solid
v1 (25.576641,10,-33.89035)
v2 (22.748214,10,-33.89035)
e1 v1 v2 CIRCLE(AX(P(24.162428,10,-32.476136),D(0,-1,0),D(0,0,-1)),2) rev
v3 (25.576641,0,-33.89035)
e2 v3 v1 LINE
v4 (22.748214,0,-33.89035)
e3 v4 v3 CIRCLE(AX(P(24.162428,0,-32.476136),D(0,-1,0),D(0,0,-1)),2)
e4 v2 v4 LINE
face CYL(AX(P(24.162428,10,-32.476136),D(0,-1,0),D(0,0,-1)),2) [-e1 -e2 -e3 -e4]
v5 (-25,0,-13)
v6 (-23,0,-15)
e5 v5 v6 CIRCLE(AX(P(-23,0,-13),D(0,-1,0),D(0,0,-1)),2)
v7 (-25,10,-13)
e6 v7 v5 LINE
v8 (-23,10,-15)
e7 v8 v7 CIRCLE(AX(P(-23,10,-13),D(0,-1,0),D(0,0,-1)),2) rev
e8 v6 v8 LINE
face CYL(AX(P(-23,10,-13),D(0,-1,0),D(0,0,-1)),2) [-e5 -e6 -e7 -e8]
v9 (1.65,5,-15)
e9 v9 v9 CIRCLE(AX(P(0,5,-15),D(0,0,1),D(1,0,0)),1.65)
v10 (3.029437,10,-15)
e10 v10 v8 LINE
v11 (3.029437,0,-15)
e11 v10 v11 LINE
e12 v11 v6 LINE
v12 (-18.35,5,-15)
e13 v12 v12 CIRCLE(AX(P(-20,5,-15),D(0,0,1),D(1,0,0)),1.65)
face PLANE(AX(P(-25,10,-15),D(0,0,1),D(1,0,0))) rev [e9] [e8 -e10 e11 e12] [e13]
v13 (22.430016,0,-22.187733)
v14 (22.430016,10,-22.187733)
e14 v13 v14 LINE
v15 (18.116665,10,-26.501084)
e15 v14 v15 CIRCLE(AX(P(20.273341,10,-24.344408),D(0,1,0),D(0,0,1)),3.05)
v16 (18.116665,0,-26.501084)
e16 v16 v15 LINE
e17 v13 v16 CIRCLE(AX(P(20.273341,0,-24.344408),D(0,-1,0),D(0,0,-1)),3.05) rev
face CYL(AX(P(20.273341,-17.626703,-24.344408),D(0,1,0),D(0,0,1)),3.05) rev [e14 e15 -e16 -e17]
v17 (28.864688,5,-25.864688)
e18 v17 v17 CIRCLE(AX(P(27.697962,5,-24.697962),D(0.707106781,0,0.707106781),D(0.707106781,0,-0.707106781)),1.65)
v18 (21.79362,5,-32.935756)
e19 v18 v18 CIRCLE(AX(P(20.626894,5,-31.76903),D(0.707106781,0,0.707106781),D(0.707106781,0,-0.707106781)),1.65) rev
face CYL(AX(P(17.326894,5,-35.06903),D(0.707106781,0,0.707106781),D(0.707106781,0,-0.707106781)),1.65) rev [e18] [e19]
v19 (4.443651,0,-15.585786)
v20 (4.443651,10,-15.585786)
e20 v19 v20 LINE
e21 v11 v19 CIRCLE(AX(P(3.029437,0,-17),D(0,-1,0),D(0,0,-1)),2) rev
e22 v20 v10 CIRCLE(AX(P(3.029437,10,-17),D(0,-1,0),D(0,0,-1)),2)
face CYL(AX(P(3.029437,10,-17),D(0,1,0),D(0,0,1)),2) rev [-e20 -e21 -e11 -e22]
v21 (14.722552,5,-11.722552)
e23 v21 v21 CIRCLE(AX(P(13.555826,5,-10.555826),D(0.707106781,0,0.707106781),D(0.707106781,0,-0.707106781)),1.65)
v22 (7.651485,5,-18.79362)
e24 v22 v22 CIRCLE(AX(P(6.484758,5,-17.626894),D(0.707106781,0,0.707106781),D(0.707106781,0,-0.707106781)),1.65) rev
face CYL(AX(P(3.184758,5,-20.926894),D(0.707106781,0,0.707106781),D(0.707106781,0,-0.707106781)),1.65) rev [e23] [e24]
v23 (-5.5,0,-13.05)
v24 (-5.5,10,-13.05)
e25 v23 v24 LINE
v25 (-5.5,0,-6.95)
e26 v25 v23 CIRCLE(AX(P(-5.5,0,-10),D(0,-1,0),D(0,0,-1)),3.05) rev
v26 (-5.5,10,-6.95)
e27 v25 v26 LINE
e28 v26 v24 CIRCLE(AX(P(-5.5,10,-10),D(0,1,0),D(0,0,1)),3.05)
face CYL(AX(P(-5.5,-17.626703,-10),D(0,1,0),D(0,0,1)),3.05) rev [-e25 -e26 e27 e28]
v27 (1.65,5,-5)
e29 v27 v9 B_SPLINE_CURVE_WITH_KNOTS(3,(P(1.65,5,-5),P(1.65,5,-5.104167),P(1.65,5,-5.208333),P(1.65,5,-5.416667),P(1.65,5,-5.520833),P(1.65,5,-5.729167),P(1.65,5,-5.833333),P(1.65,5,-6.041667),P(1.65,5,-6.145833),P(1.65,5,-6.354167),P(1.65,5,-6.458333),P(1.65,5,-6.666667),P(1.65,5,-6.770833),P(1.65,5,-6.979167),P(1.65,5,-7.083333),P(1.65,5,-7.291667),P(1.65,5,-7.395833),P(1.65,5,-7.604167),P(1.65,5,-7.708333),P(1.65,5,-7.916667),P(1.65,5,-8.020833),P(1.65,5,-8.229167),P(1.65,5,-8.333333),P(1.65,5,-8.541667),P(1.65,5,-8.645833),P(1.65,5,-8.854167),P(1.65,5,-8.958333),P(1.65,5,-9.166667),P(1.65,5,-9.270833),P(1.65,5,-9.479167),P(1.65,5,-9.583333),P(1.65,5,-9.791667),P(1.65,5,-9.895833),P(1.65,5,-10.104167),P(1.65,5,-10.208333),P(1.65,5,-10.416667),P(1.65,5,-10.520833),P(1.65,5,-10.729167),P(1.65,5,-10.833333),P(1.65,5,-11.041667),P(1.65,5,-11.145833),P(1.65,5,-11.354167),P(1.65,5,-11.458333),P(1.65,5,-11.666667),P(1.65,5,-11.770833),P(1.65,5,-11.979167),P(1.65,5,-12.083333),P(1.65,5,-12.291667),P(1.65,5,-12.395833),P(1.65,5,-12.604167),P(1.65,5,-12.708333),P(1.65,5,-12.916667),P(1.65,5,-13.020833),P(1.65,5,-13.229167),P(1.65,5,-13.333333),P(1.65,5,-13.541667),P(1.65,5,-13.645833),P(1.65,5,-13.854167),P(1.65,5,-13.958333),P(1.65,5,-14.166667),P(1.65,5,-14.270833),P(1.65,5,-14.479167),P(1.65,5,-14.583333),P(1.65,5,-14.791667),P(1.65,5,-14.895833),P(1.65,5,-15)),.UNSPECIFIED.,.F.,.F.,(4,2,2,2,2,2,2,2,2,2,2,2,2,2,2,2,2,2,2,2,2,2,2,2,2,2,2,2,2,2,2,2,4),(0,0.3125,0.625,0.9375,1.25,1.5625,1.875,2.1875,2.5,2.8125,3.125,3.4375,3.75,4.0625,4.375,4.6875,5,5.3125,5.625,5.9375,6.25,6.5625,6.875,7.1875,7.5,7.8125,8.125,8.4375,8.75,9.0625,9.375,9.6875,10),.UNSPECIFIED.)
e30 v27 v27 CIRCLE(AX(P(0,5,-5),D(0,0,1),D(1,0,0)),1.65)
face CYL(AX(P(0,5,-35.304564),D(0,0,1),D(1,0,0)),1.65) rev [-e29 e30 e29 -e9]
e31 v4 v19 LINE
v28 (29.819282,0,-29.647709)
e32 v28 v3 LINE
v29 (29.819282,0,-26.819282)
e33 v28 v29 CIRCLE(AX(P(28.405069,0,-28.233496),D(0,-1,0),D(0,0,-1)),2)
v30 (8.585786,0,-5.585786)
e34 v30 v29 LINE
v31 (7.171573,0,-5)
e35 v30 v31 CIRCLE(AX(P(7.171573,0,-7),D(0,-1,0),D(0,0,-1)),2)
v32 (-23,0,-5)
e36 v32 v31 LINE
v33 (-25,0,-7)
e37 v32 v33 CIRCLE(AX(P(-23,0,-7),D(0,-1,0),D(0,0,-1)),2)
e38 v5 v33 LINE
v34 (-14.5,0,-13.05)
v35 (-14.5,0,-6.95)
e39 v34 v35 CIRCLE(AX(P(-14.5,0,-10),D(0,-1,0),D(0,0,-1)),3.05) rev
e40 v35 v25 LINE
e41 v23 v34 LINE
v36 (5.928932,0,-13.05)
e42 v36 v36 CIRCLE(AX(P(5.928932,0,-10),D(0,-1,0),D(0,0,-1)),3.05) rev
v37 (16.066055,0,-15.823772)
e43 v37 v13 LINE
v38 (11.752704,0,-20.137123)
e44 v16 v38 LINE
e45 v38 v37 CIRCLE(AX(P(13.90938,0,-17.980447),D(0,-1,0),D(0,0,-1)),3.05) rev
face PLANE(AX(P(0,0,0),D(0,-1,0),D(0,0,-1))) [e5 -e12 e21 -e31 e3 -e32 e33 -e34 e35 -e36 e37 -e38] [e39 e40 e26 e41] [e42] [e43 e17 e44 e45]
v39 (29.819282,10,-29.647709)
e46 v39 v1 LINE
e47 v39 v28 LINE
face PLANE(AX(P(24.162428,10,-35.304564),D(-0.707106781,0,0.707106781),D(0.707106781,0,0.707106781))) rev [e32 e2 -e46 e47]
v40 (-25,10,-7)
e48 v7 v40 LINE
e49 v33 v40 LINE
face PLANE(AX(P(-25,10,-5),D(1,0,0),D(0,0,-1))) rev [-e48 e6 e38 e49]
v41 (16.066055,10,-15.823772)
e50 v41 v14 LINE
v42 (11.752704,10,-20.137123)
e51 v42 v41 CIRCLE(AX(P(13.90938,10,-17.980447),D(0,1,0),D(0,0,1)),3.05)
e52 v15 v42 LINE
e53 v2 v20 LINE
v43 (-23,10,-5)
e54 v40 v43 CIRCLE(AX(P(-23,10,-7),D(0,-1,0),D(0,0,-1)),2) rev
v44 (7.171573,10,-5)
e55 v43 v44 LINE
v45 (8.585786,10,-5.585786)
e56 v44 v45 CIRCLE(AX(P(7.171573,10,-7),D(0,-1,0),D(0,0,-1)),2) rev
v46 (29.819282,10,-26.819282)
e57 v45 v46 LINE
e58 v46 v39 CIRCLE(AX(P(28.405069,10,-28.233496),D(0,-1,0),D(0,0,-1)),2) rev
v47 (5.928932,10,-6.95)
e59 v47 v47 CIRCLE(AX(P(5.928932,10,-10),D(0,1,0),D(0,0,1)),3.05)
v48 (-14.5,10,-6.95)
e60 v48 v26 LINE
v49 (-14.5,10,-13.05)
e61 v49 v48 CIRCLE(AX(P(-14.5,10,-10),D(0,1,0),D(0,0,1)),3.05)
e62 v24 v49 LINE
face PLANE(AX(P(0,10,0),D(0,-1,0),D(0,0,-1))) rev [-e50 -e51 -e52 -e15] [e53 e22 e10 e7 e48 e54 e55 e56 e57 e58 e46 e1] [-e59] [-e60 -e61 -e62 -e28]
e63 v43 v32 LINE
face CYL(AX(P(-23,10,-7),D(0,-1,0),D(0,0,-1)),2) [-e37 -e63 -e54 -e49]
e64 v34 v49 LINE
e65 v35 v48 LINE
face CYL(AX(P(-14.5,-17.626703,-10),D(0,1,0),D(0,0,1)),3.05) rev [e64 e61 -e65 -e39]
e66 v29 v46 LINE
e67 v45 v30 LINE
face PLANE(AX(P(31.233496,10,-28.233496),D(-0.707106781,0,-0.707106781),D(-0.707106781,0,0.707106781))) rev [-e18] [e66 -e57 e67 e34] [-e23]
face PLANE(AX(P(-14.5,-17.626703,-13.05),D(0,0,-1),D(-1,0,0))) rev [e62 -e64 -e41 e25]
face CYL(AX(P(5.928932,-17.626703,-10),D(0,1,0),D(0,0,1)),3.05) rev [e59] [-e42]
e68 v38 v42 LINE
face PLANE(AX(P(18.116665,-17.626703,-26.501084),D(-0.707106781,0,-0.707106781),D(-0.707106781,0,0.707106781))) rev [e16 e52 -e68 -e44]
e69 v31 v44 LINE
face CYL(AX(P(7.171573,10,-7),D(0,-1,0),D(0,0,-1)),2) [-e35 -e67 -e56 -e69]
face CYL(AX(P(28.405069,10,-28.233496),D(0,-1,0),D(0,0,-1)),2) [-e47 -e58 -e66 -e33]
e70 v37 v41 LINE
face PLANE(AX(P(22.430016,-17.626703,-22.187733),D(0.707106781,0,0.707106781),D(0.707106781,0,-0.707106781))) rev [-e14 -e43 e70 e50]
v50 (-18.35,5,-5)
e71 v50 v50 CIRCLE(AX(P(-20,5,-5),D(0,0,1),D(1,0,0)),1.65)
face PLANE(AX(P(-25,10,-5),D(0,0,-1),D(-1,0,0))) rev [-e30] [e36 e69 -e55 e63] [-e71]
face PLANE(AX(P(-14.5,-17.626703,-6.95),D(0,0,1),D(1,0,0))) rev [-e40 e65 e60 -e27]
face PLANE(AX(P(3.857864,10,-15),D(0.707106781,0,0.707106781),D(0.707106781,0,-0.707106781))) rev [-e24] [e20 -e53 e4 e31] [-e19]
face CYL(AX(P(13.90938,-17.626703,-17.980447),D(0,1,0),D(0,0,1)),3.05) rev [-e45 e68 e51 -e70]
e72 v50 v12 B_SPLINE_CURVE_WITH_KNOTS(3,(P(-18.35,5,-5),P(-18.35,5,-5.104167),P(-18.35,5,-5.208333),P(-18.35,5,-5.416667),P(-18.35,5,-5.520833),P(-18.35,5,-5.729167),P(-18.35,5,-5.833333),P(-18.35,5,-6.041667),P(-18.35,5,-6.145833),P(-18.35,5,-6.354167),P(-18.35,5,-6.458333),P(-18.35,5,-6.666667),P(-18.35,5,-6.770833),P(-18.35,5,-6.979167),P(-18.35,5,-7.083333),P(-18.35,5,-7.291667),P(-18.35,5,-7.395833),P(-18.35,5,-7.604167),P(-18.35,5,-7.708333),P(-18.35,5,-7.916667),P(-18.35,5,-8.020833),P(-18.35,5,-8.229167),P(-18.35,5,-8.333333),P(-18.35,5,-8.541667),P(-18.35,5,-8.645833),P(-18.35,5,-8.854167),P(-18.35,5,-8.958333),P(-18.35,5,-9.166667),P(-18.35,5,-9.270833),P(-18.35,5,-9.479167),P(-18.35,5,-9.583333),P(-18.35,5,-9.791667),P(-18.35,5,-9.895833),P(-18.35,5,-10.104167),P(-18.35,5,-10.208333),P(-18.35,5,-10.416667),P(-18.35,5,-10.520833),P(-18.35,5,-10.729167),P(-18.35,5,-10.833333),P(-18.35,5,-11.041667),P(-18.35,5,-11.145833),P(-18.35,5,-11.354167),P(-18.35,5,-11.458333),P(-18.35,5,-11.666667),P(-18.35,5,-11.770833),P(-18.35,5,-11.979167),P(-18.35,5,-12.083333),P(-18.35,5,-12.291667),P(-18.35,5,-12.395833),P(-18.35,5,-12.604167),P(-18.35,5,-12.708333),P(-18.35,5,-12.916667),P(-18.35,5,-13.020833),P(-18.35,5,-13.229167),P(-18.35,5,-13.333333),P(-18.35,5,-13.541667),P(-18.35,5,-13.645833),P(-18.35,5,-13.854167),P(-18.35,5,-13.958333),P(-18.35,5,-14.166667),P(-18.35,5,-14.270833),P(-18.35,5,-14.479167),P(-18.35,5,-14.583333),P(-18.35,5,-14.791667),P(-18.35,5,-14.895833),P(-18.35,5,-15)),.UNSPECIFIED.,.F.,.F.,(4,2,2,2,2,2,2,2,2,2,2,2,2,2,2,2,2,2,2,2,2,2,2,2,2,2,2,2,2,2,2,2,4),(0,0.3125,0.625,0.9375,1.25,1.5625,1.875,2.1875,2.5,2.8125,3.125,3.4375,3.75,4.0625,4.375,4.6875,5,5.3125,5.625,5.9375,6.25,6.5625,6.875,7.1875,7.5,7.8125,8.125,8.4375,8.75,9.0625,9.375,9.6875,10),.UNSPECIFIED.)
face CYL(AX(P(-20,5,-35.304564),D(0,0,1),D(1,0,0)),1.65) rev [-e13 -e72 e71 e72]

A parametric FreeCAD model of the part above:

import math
import FreeCAD as App
import Part
import Sketcher

V = App.Vector
Q = App.Units.Quantity


def edges_at(feature, points):
    """Names of the edges that pass closest to the given points."""
    edges = feature.Shape.Edges
    near = lambda p: min(range(len(edges)), key=lambda i: edges[i].distToShape(Part.Vertex(*p))[0])
    return sorted({f"Edge{near(p) + 1}" for p in points})

doc = App.newDocument("Part")
params = doc.addObject("Spreadsheet::Sheet", "Params")
for row, (alias, value) in enumerate([
    ("sketch1_width", "33 mm"),
    ("sketch1_height", "10 mm"),
    ("sketch1_length", "10 mm"),
    ("pad1_length", "10 mm"),
    ("sketch2_diameter", "3.3 mm"),
    ("sketch3_diameter", "3.3 mm"),
    ("pocket2_length", "10 mm"),
    ("sketch4_diameter", "6.1 mm"),
    ("sketch4_width", "9 mm"),
    ("sketch4_length", "9 mm"),
    ("pocket3_length", "10 mm"),
    ("fillet_radius", "2 mm"),
], start=1):
    params.set(f"A{row}", alias)
    params.set(f"B{row}", "=" + value)
    params.setAlias(f"B{row}", alias)

body = doc.addObject("PartDesign::Body", "Body")

sketch1 = body.newObject("Sketcher::SketchObject", "Sketch")
sketch1.AttachmentSupport = (doc.getObject("XZ_Plane"), [""])
sketch1.MapMode = "FlatFace"
sketch1.addGeometry([
    Part.LineSegment(V(-25, -5, 0), V(8, -5, 0)),
    Part.LineSegment(V(8, -5, 0), V(31, -28, 0)),
    Part.LineSegment(V(31, -28, 0), V(24, -35, 0)),
    Part.LineSegment(V(24, -35, 0), V(4, -15, 0)),
    Part.LineSegment(V(4, -15, 0), V(-25, -15, 0)),
    Part.LineSegment(V(-25, -15, 0), V(-25, -5, 0)),
], False)
sketch1.addConstraint([
    Sketcher.Constraint("Coincident", 0, 2, 1, 1),
    Sketcher.Constraint("Coincident", 1, 2, 2, 1),
    Sketcher.Constraint("Coincident", 2, 2, 3, 1),
    Sketcher.Constraint("Coincident", 3, 2, 4, 1),
    Sketcher.Constraint("Coincident", 4, 2, 5, 1),
    Sketcher.Constraint("Coincident", 5, 2, 0, 1),
    Sketcher.Constraint("Horizontal", 0),
    Sketcher.Constraint("Horizontal", 4),
    Sketcher.Constraint("Vertical", 5),
    Sketcher.Constraint("Perpendicular", 1, 2),
    Sketcher.Constraint("Perpendicular", 2, 3),
    Sketcher.Constraint("DistanceX", 0, 1, 0, 2, Q("33 mm")),
    Sketcher.Constraint("DistanceY", 5, 1, 5, 2, Q("10 mm")),
    Sketcher.Constraint("Angle", 1, Q("-45 deg")),
    Sketcher.Constraint("Distance", 2, Q("10 mm")),
    Sketcher.Constraint("DistanceX", -1, 1, 0, 2, Q("8 mm")),
    Sketcher.Constraint("DistanceY", 0, 2, -1, 1, Q("5 mm")),
    Sketcher.Constraint("Distance", 3, Q("28.714989 mm")),
])
sketch1.setExpression("Constraints[11]", "Params.sketch1_width")
sketch1.setExpression("Constraints[12]", "Params.sketch1_height")
sketch1.setExpression("Constraints[14]", "Params.sketch1_length")
pad1 = body.newObject("PartDesign::Pad", "Pad")
pad1.Profile = sketch1
pad1.setExpression("Length", "Params.pad1_length")
pad1.Reversed = True

sketch2 = body.newObject("Sketcher::SketchObject", "Sketch001")
sketch2.AttachmentSupport = (doc.getObject("XY_Plane"), [""])
sketch2.MapMode = "FlatFace"
sketch2.AttachmentOffset = App.Placement(V(0, 0, -5), App.Rotation())
sketch2.addGeometry([
    Part.Circle(V(-20, 5, 0), V(0, 0, 1), 1.6),
    Part.Circle(V(0, 5, 0), V(0, 0, 1), 1.6),
], False)
sketch2.addConstraint([
    Sketcher.Constraint("Equal", 0, 1),
    Sketcher.Constraint("PointOnObject", 1, 3, -2),
    Sketcher.Constraint("Horizontal", 0, 3, 1, 3),
    Sketcher.Constraint("Diameter", 0, Q("3.3 mm")),
    Sketcher.Constraint("DistanceX", 0, 3, -1, 1, Q("20 mm")),
    Sketcher.Constraint("DistanceY", -1, 1, 0, 3, Q("5 mm")),
])
sketch2.setExpression("Constraints[3]", "Params.sketch2_diameter")
pocket1 = body.newObject("PartDesign::Pocket", "Pocket")
pocket1.Profile = sketch2
pocket1.Type = "ThroughAll"

sketch3 = body.newObject("Sketcher::SketchObject", "Sketch002")
sketch3.Placement = App.Placement(V(1.5, 0, 1.5), App.Rotation(V(0.707106781, 0, -0.707106781), V(0, 0.999999999, 0), V(0.707106781, 0, 0.707106781), "ZXY"))
sketch3.addGeometry([
    Part.Circle(V(37, 5, 0), V(0, 0, 1), 1.6),
    Part.Circle(V(17, 5, 0), V(0, 0, 1), 1.6),
], False)
sketch3.addConstraint([
    Sketcher.Constraint("Equal", 0, 1),
    Sketcher.Constraint("Horizontal", 0, 3, 1, 3),
    Sketcher.Constraint("Diameter", 0, Q("3.3 mm")),
    Sketcher.Constraint("DistanceY", -1, 1, 0, 3, Q("5 mm")),
    Sketcher.Constraint("DistanceX", 1, 3, 0, 3, Q("20 mm")),
    Sketcher.Constraint("DistanceX", -1, 1, 0, 3, Q("37.049513 mm")),
])
sketch3.setExpression("Constraints[2]", "Params.sketch3_diameter")
pocket2 = body.newObject("PartDesign::Pocket", "Pocket001")
pocket2.Profile = sketch3
pocket2.setExpression("Length", "Params.pocket2_length")

sketch4 = body.newObject("Sketcher::SketchObject", "Sketch003")
sketch4.AttachmentSupport = (doc.getObject("XZ_Plane"), [""])
sketch4.MapMode = "FlatFace"
sketch4.AttachmentOffset = App.Placement(V(0, 0, -10), App.Rotation())
sketch4.addGeometry([
    Part.Circle(V(5.9, -10, 0), V(0, 0, 1), 3),
    Part.LineSegment(V(-5.5, -13.1, 0), V(-14.5, -13.1, 0)),
    Part.ArcOfCircle(Part.Circle(V(-14.5, -10, 0), V(0, 0, 1), 3), math.radians(90), math.radians(270)),
    Part.LineSegment(V(-14.5, -7, 0), V(-5.5, -7, 0)),
    Part.ArcOfCircle(Part.Circle(V(-5.5, -10, 0), V(0, 0, 1), 3), math.radians(-90), math.radians(90)),
    Part.LineSegment(V(16.1, -15.8, 0), V(22.4, -22.2, 0)),
    Part.ArcOfCircle(Part.Circle(V(20.3, -24.3, 0), V(0, 0, 1), 3.1), math.radians(-135), math.radians(45)),
    Part.LineSegment(V(18.1, -26.5, 0), V(11.8, -20.1, 0)),
    Part.ArcOfCircle(Part.Circle(V(13.9, -18, 0), V(0, 0, 1), 3), math.radians(45), math.radians(225)),
], False)
sketch4.addConstraint([
    Sketcher.Constraint("Tangent", 1, 2, 2, 2),
    Sketcher.Constraint("Tangent", 2, 1, 3, 1),
    Sketcher.Constraint("Tangent", 3, 2, 4, 2),
    Sketcher.Constraint("Tangent", 4, 1, 1, 1),
    Sketcher.Constraint("Tangent", 5, 2, 6, 2),
    Sketcher.Constraint("Tangent", 6, 1, 7, 1),
    Sketcher.Constraint("Tangent", 7, 2, 8, 2),
    Sketcher.Constraint("Tangent", 8, 1, 5, 1),
    Sketcher.Constraint("Horizontal", 1),
    Sketcher.Constraint("Horizontal", 3),
    Sketcher.Constraint("Equal", 0, 2),
    Sketcher.Constraint("Equal", 4, 6),
    Sketcher.Constraint("Equal", 6, 8),
    Sketcher.Constraint("Horizontal", 0, 3, 2, 3),
    Sketcher.Constraint("Diameter", 0, Q("6.1 mm")),
    Sketcher.Constraint("DistanceX", 1, 2, 1, 1, Q("9 mm")),
    Sketcher.Constraint("Angle", 5, Q("-45 deg")),
    Sketcher.Constraint("Distance", 5, Q("9 mm")),
    Sketcher.Constraint("DistanceY", 0, 3, -1, 1, Q("10 mm")),
    Sketcher.Constraint("DistanceX", 2, 3, -1, 1, Q("14.5 mm")),
    Sketcher.Constraint("DistanceX", -1, 1, 6, 3, Q("20.273341 mm")),
    Sketcher.Constraint("DistanceY", 6, 3, -1, 1, Q("24.344408 mm")),
    Sketcher.Constraint("DistanceX", 0, 3, 6, 3, Q("14.344408 mm")),
])
sketch4.setExpression("Constraints[14]", "Params.sketch4_diameter")
sketch4.setExpression("Constraints[15]", "Params.sketch4_width")
sketch4.setExpression("Constraints[17]", "Params.sketch4_length")
pocket3 = body.newObject("PartDesign::Pocket", "Pocket002")
pocket3.Profile = sketch4
pocket3.setExpression("Length", "Params.pocket3_length")
pocket3.Reversed = True
doc.recompute()

fillet = body.newObject("PartDesign::Fillet", "Fillet")
fillet.Base = (pocket3, edges_at(pocket3, [
    (-25, 5, -15),
    (3.858, 5, -15),
    (24.162, 5, -35.305),
    (31.233, 5, -28.233),
    (8, 5, -5),
    (-25, 5, -5),
]))
fillet.setExpression("Radius", "Params.fillet_radius")

doc.recompute()
